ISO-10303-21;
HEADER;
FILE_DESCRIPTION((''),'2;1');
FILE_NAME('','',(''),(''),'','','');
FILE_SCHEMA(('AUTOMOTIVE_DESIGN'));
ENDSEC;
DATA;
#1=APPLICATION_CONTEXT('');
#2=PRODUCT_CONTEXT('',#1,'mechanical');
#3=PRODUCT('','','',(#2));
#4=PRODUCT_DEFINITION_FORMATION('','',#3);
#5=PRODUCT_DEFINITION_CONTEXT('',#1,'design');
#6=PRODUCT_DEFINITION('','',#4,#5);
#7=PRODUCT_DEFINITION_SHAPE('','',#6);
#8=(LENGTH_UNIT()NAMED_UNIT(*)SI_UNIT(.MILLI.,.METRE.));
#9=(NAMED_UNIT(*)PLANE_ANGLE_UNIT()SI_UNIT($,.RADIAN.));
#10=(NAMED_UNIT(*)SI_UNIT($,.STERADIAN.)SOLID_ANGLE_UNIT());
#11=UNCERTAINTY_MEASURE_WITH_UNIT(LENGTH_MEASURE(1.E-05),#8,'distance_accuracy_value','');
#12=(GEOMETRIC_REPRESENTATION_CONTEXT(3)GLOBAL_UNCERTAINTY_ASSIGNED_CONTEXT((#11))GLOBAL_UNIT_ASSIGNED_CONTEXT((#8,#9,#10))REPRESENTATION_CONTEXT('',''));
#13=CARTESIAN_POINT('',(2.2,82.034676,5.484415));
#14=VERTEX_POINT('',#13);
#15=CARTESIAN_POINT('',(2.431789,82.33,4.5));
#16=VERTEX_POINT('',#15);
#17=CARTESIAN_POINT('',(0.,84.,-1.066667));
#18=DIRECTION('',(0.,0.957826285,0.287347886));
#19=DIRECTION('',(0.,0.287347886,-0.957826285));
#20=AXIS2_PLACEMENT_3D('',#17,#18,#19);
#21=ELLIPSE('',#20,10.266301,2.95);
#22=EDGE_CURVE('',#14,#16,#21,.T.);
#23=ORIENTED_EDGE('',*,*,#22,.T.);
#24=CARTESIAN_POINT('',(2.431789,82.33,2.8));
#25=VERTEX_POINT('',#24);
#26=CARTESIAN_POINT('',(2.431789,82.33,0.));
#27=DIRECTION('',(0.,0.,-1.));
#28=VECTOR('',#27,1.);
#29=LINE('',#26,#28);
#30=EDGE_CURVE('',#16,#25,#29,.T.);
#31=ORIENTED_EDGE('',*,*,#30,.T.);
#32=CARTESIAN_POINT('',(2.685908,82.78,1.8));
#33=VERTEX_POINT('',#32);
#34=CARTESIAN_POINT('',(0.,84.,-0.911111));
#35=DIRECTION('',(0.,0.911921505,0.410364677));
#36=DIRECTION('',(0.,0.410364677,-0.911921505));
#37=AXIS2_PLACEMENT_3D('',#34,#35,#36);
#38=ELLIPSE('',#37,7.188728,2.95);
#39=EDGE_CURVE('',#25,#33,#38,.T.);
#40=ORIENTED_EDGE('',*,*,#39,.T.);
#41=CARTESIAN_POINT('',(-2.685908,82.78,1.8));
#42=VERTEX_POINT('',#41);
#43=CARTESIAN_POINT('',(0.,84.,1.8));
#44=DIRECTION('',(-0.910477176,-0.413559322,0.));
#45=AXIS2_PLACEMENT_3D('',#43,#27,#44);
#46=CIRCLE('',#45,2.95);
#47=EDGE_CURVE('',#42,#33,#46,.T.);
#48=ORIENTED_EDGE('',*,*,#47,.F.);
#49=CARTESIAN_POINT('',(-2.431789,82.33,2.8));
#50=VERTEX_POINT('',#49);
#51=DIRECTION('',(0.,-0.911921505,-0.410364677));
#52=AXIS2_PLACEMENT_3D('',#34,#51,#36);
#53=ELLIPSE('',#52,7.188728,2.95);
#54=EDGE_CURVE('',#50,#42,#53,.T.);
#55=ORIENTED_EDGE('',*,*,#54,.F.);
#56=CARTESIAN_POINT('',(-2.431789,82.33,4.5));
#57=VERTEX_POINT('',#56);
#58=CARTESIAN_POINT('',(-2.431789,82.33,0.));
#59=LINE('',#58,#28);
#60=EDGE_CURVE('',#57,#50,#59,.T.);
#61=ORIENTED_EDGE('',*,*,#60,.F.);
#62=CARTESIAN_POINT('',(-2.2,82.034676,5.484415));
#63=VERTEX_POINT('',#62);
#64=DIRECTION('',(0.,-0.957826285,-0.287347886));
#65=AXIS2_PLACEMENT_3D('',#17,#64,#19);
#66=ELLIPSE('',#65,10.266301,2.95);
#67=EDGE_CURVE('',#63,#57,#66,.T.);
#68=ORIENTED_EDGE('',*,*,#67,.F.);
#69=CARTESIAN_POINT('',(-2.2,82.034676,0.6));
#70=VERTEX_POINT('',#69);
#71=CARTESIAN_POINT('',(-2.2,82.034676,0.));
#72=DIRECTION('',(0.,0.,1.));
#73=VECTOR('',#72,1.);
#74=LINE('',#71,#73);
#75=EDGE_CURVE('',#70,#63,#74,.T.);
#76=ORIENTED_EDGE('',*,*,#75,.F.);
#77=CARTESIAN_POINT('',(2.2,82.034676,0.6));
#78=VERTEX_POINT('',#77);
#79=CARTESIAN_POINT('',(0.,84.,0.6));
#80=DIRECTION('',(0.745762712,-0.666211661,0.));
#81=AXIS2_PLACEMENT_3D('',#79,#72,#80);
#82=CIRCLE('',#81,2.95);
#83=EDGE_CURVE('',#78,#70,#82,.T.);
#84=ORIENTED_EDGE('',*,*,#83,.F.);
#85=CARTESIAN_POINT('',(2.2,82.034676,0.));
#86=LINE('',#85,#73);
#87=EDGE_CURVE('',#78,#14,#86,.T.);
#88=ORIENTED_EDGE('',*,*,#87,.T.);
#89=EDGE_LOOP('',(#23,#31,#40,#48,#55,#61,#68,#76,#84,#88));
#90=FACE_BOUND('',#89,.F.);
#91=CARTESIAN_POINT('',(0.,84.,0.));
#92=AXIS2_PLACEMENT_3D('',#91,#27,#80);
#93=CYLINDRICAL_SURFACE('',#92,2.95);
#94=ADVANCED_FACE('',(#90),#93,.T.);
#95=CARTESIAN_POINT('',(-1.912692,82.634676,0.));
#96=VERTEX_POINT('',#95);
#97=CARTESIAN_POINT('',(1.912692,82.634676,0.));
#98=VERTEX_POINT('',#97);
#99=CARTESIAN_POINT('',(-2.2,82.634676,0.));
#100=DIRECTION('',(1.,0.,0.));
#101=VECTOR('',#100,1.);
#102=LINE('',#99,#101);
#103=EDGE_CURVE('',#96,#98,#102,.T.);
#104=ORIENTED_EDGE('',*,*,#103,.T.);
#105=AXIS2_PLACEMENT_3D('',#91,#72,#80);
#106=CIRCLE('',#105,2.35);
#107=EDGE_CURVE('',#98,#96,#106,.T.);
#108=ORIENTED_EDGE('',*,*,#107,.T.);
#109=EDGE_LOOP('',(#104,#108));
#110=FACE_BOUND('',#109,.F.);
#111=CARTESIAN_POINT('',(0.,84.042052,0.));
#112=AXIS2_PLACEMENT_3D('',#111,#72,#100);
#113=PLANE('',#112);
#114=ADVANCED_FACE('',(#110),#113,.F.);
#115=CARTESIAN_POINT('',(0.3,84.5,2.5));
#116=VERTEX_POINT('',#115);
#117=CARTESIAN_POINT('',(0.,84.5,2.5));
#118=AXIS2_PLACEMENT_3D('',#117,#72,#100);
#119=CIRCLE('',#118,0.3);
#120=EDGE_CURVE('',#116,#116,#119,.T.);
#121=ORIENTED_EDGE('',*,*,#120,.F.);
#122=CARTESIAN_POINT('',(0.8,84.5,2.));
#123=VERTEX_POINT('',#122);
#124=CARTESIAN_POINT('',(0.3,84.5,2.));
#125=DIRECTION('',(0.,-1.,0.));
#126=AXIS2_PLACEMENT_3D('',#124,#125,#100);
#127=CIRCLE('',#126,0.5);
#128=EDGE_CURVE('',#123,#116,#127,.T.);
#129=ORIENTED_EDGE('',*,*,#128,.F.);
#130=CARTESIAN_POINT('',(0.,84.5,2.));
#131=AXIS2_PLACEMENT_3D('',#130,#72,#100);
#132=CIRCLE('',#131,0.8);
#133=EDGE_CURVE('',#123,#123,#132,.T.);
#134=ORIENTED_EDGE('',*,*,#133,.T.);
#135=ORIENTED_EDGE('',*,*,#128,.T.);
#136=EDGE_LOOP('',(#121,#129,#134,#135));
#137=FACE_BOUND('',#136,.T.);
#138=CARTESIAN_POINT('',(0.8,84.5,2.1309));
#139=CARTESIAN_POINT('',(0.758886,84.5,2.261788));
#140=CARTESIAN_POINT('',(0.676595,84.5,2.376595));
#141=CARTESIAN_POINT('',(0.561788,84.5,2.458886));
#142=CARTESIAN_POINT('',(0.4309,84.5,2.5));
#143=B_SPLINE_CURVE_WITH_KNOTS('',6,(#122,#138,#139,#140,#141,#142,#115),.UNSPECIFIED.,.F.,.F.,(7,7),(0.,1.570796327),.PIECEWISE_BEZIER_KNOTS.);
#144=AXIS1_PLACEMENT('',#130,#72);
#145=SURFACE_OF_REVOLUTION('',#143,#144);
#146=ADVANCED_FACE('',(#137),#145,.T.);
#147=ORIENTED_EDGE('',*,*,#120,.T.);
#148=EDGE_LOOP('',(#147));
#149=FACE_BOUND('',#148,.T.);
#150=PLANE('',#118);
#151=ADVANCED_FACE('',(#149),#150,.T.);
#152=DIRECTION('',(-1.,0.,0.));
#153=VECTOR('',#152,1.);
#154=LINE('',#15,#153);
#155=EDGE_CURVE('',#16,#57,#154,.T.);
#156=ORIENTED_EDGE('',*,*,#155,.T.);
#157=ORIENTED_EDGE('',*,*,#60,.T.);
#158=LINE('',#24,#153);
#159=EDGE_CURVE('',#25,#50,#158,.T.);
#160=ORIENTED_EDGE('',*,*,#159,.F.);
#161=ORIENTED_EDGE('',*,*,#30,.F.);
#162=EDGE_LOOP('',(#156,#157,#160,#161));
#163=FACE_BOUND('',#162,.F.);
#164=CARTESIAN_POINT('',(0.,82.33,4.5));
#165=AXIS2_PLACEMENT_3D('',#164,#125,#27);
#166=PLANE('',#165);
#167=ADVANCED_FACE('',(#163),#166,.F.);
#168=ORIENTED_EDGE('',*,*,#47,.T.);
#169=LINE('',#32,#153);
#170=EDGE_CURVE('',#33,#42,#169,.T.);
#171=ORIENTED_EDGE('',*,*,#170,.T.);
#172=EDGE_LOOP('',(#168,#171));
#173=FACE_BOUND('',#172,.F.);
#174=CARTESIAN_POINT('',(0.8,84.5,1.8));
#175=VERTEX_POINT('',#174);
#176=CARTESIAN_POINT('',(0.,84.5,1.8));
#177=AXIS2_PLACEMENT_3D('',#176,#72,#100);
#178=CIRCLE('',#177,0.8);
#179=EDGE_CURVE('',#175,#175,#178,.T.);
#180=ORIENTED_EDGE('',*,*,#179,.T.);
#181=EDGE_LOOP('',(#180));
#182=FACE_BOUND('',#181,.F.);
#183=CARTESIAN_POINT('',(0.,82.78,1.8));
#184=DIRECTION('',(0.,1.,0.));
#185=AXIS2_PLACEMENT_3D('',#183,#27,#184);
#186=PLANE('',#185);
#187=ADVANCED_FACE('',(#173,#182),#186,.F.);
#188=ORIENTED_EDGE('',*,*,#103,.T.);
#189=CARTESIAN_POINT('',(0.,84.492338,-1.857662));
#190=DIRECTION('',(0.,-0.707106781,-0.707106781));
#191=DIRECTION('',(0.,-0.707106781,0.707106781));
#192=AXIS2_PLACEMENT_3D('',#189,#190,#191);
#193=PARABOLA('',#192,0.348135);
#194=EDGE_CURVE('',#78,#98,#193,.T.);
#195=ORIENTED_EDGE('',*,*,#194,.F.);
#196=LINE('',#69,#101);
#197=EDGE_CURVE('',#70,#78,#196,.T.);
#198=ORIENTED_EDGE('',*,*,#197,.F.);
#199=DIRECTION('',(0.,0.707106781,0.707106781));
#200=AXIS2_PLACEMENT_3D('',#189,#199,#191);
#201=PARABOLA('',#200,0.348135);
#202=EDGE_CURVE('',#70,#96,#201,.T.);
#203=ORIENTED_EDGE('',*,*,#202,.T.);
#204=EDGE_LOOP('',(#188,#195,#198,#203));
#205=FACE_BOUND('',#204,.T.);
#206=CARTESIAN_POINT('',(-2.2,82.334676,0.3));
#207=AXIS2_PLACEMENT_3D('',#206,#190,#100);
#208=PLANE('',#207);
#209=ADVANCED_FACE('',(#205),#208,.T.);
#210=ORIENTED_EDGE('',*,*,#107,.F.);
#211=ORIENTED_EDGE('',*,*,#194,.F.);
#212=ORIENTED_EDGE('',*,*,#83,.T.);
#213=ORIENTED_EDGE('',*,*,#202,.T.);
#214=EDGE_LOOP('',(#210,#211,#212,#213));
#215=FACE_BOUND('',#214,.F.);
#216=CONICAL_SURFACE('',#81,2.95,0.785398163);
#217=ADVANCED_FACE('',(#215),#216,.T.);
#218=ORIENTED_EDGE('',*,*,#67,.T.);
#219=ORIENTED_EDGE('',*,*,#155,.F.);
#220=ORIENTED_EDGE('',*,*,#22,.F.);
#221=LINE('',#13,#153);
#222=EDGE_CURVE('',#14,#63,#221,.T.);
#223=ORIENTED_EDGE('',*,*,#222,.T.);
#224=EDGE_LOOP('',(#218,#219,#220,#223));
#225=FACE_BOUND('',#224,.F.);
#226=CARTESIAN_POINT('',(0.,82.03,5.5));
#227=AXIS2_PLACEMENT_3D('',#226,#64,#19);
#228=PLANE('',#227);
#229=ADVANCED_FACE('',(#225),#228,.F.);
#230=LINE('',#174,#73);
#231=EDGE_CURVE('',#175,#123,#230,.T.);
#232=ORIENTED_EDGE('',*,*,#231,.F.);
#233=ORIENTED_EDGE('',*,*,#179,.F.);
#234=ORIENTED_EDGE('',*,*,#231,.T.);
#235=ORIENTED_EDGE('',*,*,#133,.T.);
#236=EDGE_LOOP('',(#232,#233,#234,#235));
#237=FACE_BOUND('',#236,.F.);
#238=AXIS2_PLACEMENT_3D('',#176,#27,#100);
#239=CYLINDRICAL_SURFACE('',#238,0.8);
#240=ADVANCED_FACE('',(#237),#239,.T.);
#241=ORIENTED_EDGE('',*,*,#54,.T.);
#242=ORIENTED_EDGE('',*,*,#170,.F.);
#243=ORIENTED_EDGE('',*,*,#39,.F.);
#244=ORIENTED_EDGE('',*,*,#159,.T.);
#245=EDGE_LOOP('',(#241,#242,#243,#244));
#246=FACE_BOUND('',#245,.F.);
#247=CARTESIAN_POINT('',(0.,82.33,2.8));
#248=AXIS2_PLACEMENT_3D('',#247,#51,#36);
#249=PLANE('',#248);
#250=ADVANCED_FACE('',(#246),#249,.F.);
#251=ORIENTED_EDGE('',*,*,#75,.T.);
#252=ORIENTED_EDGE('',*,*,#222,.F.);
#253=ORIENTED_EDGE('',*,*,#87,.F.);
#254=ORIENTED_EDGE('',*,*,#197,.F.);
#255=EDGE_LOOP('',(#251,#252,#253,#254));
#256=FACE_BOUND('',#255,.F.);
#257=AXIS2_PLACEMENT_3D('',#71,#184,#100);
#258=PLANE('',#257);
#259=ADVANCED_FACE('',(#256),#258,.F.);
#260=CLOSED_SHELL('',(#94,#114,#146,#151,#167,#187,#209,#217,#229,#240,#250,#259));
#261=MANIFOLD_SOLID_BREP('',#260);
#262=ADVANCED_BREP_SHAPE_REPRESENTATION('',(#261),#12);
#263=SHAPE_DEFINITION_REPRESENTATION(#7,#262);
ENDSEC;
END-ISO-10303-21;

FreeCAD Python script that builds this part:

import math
import FreeCAD as App
import Part
import Sketcher
from FreeCAD import Vector


def edges_at(feature, points):
    """Names of the edges that pass closest to the given points."""
    edges = feature.Shape.Edges
    near = lambda p: min(range(len(edges)), key=lambda i: edges[i].distToShape(Part.Vertex(*p))[0])
    return sorted({f"Edge{near(p) + 1}" for p in points})

doc = App.newDocument("Part")
body = doc.addObject("PartDesign::Body", "Body")

# Sketch on XY plane
sketch1 = body.newObject("Sketcher::SketchObject", "Sketch")
sketch1.AttachmentSupport = (doc.getObject("XY_Plane"), [""])
sketch1.MapMode = "FlatFace"
sketch1.addGeometry([
    Part.ArcOfCircle(Part.Circle(Vector(0, 0, 0), Vector(0, 0, 1), 2.95), math.radians(-41.775348), math.radians(221.775348)),
    Part.LineSegment(Vector(-2.2, -1.965324, 0), Vector(2.2, -1.965324, 0)),
], False)
sketch1.addConstraint([
    Sketcher.Constraint("Coincident", 0, 1, 1, 2),
    Sketcher.Constraint("Coincident", 1, 1, 0, 2),
    Sketcher.Constraint("Horizontal", 1),
    Sketcher.Constraint("Coincident", 0, 3, -1, 1),
    Sketcher.Constraint("Radius", 0, 2.95),
    Sketcher.Constraint("DistanceX", 1, 1, 1, 2, 4.4),
])
pad1 = body.newObject("PartDesign::Pad", "Pad")
pad1.Profile = sketch1
pad1.Length = 5.5

# Sketch on YZ plane
sketch2 = body.newObject("Sketcher::SketchObject", "Sketch001")
sketch2.AttachmentSupport = (doc.getObject("YZ_Plane"), [""])
sketch2.MapMode = "FlatFace"
sketch2.addGeometry([
    Part.LineSegment(Vector(-1.97, 5.5, 0), Vector(-1.67, 4.5, 0)),  # 0
    Part.LineSegment(Vector(-1.67, 4.5, 0), Vector(-1.67, 2.8, 0)),  # 1
    Part.LineSegment(Vector(-1.67, 2.8, 0), Vector(-1.22, 1.8, 0)),  # 2
    Part.LineSegment(Vector(-1.22, 1.8, 0), Vector(4, 1.8, 0)),  # 3
    Part.LineSegment(Vector(4, 1.8, 0), Vector(4, 5.5, 0)),  # 4
    Part.LineSegment(Vector(4, 5.5, 0), Vector(-1.97, 5.5, 0)),  # 5
], False)
sketch2.addConstraint([
    Sketcher.Constraint("Coincident", 0, 2, 1, 1),
    Sketcher.Constraint("Coincident", 1, 2, 2, 1),
    Sketcher.Constraint("Coincident", 2, 2, 3, 1),
    Sketcher.Constraint("Coincident", 3, 2, 4, 1),
    Sketcher.Constraint("Coincident", 4, 2, 5, 1),
    Sketcher.Constraint("Coincident", 5, 2, 0, 1),
    Sketcher.Constraint("Vertical", 1),
    Sketcher.Constraint("Horizontal", 3),
    Sketcher.Constraint("Vertical", 4),
    Sketcher.Constraint("Horizontal", 5),
    Sketcher.Constraint("DistanceY", 1, 2, 1, 1, 1.7),
    Sketcher.Constraint("DistanceY", 4, 1, 4, 2, 3.7),
    Sketcher.Constraint("DistanceX", -1, 1, 3, 2, 4.0),
    Sketcher.Constraint("DistanceY", 2, 2, 1, 2, 1.0),
    Sketcher.Constraint("DistanceX", 3, 1, 3, 2, 5.22),
    Sketcher.Constraint("DistanceX", 5, 2, 5, 1, 5.97),
    Sketcher.Constraint("DistanceY", -1, 1, 0, 2, 4.5),
    Sketcher.Constraint("DistanceX", 5, 2, 0, 2, 0.3),
])
pocket1 = body.newObject("PartDesign::Pocket", "Pocket")
pocket1.Profile = sketch2
pocket1.Type = "ThroughAll"
pocket1.Midplane = True

# Sketch on XY plane
sketch3 = body.newObject("Sketcher::SketchObject", "Sketch002")
sketch3.AttachmentSupport = (doc.getObject("XY_Plane"), [""])
sketch3.MapMode = "FlatFace"
sketch3.AttachmentOffset = App.Placement(Vector(0, 0, 1.8), App.Rotation())
sketch3.addGeometry(Part.Circle(Vector(0, 0.5, 0), Vector(0, 0, 1), 0.8), False)
sketch3.addConstraint([
    Sketcher.Constraint("PointOnObject", 0, 3, -2),
    Sketcher.Constraint("Diameter", 0, 1.6),
    Sketcher.Constraint("DistanceY", -1, 1, 0, 3, 0.5),
])
pad2 = body.newObject("PartDesign::Pad", "Pad001")
pad2.Profile = sketch3
pad2.Length = 0.7
doc.recompute()

fillet = body.newObject("PartDesign::Fillet", "Fillet")
fillet.Base = (pad2, edges_at(pad2, [(-0.8, 0.5, 2.5)]))
fillet.Radius = 0.5
doc.recompute()

chamfer = body.newObject("PartDesign::Chamfer", "Chamfer")
chamfer.Base = (fillet, edges_at(fillet, [(0, 2.95, 0), (0, -1.965, 0)]))
chamfer.Size = 0.6
body2 = doc.addObject("PartDesign::Body", "Body001")
doc.recompute()

body.Placement = App.Placement(Vector(0, 84, 0), App.Rotation(Vector(0, 0, 1), 0))
boolean = body2.newObject("PartDesign::Boolean", "Boolean")
boolean.Type = "Fuse"
boolean.addObjects([body])

doc.recompute()
